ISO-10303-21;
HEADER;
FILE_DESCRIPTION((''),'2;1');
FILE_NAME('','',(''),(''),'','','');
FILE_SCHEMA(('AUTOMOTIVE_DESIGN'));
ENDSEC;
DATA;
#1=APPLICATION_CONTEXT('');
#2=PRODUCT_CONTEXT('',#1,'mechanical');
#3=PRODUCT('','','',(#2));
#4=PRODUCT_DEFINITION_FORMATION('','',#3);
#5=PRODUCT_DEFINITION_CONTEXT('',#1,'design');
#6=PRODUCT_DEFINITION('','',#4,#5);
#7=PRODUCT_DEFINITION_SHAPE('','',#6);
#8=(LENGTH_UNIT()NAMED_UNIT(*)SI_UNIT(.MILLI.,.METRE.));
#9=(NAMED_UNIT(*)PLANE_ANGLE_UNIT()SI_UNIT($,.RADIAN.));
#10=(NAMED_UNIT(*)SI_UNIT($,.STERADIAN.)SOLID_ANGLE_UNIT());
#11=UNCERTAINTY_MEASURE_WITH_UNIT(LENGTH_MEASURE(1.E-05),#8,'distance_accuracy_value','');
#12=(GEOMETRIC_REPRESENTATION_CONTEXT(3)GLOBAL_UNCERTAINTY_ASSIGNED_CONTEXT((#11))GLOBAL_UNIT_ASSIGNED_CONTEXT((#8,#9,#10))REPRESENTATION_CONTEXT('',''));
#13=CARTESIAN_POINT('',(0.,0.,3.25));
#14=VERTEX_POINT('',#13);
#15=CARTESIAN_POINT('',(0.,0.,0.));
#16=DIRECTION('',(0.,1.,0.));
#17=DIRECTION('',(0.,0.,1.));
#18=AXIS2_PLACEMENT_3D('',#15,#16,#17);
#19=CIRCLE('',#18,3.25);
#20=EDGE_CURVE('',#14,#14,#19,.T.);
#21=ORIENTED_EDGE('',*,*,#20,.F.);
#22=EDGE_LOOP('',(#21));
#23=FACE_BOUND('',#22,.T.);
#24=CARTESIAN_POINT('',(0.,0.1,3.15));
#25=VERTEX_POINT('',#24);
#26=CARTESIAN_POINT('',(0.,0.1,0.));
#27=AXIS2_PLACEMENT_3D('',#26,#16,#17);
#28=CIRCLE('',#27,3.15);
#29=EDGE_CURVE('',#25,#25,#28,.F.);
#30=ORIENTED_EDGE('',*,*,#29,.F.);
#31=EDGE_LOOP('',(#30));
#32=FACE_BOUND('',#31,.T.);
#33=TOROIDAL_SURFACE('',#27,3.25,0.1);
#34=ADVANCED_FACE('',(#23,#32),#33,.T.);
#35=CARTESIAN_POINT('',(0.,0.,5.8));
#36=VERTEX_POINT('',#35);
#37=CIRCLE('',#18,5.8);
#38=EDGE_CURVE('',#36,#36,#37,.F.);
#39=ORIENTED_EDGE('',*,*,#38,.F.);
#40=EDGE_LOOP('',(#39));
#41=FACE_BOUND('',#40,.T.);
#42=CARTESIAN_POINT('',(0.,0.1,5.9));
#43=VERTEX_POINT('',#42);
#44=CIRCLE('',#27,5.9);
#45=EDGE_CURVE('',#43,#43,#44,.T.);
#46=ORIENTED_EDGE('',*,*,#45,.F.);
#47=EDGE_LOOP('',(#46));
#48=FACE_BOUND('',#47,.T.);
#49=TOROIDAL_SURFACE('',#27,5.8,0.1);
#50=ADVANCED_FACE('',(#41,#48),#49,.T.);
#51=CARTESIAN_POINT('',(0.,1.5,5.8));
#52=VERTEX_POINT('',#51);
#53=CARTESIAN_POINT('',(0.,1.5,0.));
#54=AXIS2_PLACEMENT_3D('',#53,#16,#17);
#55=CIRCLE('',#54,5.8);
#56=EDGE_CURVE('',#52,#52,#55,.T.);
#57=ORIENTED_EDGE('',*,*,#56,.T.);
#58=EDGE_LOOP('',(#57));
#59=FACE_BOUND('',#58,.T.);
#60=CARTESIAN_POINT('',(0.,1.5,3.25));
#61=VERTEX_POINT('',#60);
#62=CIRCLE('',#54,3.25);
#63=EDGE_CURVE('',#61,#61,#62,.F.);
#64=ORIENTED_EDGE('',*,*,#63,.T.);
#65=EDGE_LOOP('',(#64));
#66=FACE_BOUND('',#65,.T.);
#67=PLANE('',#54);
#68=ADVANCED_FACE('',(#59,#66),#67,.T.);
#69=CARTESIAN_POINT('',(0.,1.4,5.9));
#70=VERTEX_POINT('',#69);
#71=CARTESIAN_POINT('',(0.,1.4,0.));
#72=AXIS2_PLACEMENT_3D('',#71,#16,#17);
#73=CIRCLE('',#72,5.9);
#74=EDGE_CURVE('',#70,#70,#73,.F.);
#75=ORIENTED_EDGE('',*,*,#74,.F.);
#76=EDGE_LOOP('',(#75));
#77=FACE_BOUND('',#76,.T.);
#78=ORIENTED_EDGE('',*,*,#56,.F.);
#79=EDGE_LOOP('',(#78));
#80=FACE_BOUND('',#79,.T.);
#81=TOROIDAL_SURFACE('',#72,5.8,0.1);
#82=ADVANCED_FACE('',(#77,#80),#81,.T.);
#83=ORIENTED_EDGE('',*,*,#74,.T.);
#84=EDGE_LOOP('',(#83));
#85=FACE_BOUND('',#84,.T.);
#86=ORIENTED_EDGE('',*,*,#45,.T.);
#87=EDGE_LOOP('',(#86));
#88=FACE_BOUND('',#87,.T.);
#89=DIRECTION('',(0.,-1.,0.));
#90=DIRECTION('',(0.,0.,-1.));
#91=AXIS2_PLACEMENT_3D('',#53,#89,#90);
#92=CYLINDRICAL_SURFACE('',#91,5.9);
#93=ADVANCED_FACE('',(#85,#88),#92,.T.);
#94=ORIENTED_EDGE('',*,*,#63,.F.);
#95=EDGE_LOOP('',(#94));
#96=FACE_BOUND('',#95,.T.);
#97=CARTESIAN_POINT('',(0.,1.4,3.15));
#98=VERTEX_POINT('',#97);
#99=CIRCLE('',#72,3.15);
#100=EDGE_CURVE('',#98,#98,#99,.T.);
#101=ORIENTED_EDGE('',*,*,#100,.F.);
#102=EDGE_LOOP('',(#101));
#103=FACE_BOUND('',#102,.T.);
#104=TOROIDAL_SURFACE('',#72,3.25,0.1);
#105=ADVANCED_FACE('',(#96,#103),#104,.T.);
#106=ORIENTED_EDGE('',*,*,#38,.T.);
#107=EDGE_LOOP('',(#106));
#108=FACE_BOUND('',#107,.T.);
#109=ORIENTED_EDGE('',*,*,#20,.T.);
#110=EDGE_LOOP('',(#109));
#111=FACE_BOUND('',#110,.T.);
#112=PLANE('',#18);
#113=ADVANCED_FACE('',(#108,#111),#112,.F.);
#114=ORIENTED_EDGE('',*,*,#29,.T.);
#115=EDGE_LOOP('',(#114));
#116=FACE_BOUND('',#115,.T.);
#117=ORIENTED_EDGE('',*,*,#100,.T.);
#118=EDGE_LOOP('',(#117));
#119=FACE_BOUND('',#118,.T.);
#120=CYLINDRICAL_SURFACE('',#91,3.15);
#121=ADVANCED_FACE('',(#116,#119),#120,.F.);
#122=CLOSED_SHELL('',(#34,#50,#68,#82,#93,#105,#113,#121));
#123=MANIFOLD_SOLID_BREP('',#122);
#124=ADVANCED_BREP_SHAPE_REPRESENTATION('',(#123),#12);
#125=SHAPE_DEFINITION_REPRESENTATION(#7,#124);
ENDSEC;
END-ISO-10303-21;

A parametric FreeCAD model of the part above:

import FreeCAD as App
import Part
import Sketcher
from FreeCAD import Vector
Q = App.Units.Quantity


def edges_at(feature, points):
    """Names of the edges that pass closest to the given points."""
    edges = feature.Shape.Edges
    near = lambda p: min(range(len(edges)), key=lambda i: edges[i].distToShape(Part.Vertex(*p))[0])
    return sorted({f"Edge{near(p) + 1}" for p in points})

doc = App.newDocument("Part")
body = doc.addObject("PartDesign::Body", "Body")

# Sketch on XZ plane
sketch1 = doc.addObject("Sketcher::SketchObject", "Sketch")
body.addObject(sketch1)
sketch1.AttachmentSupport = (doc.XZ_Plane, [""])
sketch1.MapMode = "FlatFace"
sketch1.addGeometry([
    Part.Circle(Vector(0, 0, 0), Vector(0, 0, 1), 5.9),
    Part.Circle(Vector(0, 0, 0), Vector(0, 0, 1), 3.15),
], False)
sketch1.addConstraint([
    Sketcher.Constraint("Coincident", 0, 3, -1, 1),
    Sketcher.Constraint("Coincident", 1, 3, -1, 1),
    Sketcher.Constraint("Diameter", 0, Q("11.8 mm")),
    Sketcher.Constraint("Diameter", 1, Q("6.3 mm")),
])
pad1 = doc.addObject("PartDesign::Pad", "Pad")
body.addObject(pad1)
pad1.Profile = sketch1
pad1.Length = 1.5
pad1.Reversed = True
doc.recompute()

fillet = doc.addObject("PartDesign::Fillet", "Fillet")
body.addObject(fillet)
fillet.Base = (pad1, edges_at(pad1, [
    (-5.9, 0, 0),
    (-5.9, 1.5, 0),
    (-3.15, 0, 0),
    (-3.15, 1.5, 0),
]))
fillet.Radius = 0.1

doc.recompute()
